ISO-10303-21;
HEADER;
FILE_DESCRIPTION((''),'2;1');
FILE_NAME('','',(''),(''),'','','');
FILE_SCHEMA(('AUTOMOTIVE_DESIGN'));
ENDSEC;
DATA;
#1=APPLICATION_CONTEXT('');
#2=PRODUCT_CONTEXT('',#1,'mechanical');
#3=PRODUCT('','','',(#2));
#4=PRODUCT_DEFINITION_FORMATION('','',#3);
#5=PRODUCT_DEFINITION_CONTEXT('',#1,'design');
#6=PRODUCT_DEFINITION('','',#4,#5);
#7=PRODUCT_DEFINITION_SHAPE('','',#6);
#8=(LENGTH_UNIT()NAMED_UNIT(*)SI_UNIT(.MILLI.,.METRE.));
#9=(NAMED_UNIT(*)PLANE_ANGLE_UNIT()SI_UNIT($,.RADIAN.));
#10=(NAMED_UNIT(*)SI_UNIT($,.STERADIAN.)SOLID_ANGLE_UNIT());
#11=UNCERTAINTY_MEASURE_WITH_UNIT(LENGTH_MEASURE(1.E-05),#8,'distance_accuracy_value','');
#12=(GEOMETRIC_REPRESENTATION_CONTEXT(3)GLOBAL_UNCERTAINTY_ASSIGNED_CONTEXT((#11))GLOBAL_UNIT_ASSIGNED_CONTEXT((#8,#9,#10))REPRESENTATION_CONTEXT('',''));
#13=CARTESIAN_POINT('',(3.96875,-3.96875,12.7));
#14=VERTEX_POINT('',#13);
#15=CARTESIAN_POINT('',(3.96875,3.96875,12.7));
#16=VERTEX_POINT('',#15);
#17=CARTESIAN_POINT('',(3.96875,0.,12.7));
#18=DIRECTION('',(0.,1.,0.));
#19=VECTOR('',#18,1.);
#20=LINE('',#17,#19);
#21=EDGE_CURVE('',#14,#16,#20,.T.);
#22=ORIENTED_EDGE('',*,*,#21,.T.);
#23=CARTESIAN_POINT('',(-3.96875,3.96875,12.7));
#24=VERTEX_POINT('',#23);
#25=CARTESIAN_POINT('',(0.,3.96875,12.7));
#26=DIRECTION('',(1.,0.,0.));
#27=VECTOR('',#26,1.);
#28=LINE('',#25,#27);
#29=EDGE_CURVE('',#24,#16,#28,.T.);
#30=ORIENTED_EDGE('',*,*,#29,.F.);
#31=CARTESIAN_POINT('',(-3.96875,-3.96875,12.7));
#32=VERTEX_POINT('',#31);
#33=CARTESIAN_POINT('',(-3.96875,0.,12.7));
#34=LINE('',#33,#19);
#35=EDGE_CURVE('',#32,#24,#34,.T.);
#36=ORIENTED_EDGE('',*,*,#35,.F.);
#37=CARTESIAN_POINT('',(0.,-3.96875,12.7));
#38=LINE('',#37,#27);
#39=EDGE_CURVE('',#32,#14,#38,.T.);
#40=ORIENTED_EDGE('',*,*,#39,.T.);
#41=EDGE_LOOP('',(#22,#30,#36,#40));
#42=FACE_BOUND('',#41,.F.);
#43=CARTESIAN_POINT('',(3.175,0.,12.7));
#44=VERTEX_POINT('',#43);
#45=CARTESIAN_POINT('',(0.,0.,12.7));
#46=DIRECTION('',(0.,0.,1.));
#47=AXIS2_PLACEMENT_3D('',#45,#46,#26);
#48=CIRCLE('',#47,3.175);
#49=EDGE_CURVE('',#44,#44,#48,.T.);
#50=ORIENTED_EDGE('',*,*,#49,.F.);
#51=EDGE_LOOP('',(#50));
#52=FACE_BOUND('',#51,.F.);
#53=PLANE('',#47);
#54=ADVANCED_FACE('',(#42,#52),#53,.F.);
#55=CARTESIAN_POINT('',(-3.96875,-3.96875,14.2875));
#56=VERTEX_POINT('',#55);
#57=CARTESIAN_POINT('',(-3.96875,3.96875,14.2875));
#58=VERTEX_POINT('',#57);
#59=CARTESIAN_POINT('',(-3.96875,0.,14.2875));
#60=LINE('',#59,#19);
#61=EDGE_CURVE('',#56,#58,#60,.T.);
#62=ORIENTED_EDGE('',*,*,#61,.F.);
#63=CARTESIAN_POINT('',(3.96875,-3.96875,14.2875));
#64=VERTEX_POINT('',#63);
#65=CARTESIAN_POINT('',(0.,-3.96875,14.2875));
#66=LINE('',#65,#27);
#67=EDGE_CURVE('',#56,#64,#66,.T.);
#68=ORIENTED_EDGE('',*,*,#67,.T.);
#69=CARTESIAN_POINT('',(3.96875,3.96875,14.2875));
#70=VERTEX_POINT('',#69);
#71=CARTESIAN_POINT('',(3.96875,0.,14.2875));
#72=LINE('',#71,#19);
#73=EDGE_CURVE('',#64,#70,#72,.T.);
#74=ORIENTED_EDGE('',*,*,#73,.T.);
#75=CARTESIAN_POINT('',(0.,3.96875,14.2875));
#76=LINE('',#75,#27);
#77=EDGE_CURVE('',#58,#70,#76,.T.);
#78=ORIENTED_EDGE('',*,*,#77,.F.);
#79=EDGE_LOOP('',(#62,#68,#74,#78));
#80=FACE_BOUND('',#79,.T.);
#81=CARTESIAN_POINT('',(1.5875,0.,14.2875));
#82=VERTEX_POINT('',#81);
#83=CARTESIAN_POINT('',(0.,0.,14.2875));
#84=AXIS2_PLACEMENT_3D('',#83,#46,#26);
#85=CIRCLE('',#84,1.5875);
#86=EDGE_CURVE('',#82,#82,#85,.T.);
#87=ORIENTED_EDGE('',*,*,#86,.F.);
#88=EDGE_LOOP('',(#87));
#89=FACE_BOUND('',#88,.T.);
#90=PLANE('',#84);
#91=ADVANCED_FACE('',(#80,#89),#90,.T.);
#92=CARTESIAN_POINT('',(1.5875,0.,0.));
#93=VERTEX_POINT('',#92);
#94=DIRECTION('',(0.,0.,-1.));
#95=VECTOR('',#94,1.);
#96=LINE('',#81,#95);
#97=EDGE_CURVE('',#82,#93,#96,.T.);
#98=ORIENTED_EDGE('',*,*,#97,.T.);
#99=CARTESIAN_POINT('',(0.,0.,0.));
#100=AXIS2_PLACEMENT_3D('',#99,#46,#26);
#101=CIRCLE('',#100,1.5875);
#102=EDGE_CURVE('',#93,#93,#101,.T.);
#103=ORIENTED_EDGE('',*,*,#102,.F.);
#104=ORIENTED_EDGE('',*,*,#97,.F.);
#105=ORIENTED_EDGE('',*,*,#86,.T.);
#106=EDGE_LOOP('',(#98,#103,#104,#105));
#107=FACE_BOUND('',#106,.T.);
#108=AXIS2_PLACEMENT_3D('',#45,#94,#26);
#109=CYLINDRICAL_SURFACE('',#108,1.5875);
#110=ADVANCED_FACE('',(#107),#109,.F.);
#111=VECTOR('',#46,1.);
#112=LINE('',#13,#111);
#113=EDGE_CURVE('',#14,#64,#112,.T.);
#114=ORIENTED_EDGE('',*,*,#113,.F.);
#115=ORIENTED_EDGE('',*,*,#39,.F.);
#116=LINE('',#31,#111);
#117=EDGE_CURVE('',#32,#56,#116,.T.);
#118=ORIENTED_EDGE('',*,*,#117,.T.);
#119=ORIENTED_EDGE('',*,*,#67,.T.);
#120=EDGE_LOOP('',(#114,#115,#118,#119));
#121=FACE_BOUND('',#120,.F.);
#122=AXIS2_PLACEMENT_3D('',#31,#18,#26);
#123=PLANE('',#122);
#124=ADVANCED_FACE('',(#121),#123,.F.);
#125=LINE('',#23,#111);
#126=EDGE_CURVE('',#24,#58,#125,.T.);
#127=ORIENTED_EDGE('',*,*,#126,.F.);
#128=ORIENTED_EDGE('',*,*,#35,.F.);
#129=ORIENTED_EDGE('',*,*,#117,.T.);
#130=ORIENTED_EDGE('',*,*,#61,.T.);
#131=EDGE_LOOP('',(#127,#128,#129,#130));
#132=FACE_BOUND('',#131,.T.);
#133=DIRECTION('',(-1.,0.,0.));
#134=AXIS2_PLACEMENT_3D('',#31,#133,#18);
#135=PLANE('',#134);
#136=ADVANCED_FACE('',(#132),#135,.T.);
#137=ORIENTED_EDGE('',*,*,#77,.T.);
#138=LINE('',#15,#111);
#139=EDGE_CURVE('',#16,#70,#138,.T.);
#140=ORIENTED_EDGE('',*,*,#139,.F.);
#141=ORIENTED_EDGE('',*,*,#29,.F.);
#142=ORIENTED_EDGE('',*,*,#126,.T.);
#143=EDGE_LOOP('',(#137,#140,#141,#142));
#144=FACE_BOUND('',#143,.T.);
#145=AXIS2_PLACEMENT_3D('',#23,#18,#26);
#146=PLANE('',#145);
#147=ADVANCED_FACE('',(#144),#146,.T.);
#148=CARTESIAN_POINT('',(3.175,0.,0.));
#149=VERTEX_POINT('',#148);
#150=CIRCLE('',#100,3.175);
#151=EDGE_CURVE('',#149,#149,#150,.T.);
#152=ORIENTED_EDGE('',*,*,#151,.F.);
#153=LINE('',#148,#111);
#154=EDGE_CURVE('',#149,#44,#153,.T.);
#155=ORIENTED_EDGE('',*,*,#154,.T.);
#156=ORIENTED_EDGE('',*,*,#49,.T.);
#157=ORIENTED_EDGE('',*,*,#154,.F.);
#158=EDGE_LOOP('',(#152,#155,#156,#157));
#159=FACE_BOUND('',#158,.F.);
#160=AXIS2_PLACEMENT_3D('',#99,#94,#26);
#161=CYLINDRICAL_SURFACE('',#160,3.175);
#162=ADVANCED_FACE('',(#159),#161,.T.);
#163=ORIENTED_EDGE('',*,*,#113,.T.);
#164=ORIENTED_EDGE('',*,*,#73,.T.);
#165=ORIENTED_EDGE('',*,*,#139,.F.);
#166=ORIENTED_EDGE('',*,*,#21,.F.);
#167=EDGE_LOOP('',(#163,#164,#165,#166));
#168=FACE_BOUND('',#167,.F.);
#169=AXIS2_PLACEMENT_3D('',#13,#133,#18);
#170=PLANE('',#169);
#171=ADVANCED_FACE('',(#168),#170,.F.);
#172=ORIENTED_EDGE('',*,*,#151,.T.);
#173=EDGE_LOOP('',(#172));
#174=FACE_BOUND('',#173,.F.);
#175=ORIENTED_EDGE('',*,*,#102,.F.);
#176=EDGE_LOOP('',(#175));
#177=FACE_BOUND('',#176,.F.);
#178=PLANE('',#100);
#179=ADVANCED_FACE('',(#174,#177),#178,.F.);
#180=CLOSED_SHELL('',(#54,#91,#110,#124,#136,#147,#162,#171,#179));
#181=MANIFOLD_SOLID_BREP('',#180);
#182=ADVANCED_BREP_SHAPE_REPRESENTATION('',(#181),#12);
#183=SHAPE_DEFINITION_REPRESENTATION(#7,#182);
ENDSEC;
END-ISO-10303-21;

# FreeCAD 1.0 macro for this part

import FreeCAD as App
import Part
import Sketcher
Q = App.Units.Quantity


def add_polygon(sketch, points):
    """Adds a closed chain of lines whose ends are joined by coincident constraints."""
    first, n = sketch.GeometryCount, len(points)
    for a, b in zip(points, points[1:] + points[:1]):
        sketch.addGeometry(Part.LineSegment(App.Vector(*a, 0), App.Vector(*b, 0)), False)
    for i in range(n):
        sketch.addConstraint(Sketcher.Constraint("Coincident", first + i, 2, first + (i + 1) % n, 1))

doc = App.newDocument("Part")
params = doc.addObject("Spreadsheet::Sheet", "Params")
for row, (alias, value) in enumerate([
    ("sketch1_diameter", "0.25 in"),
    ("sketch1_diameter2", "0.125 in"),
    ("pad1_length", "0.5 in"),
    ("sketch2_diameter", "0.125 in"),
    ("sketch2_width", "0.3125 in"),
    ("pad2_length", "0.0625 in"),
], start=1):
    params.set(f"A{row}", alias)
    params.set(f"B{row}", "=" + value)
    params.setAlias(f"B{row}", alias)

body = doc.addObject("PartDesign::Body", "Body")

# Sketch on XY plane
sketch1 = body.newObject("Sketcher::SketchObject", "Sketch")
sketch1.AttachmentSupport = (doc.getObject("XY_Plane"), [""])
sketch1.MapMode = "FlatFace"
sketch1.addGeometry(Part.Circle(App.Vector(0, 0, 0), App.Vector(0, 0, 1), 3.2), False)
sketch1.addGeometry(Part.Circle(App.Vector(0, 0, 0), App.Vector(0, 0, 1), 1.6), False)
sketch1.addConstraint(Sketcher.Constraint("Coincident", 0, 3, -1, 1))
sketch1.addConstraint(Sketcher.Constraint("Coincident", 1, 3, -1, 1))
sketch1.addConstraint(Sketcher.Constraint("Diameter", 0, Q("0.25 in")))
sketch1.addConstraint(Sketcher.Constraint("Diameter", 1, Q("0.125 in")))
sketch1.setExpression("Constraints[2]", "Params.sketch1_diameter")
sketch1.setExpression("Constraints[3]", "Params.sketch1_diameter2")
pad1 = body.newObject("PartDesign::Pad", "Pad")
pad1.Profile = sketch1
pad1.setExpression("Length", "Params.pad1_length")

# Sketch on XY plane
sketch2 = body.newObject("Sketcher::SketchObject", "Sketch001")
sketch2.AttachmentSupport = (doc.getObject("XY_Plane"), [""])
sketch2.MapMode = "FlatFace"
sketch2.AttachmentOffset = App.Placement(App.Vector(0, 0, 0.5 * 25.4), App.Rotation())
add_polygon(sketch2, [(-4, 4), (-4, -4), (4, -4), (4, 4)])  # lines 0-3
sketch2.addGeometry(Part.Circle(App.Vector(0, 0, 0), App.Vector(0, 0, 1), 1.6), False)  # 4
sketch2.addConstraint(Sketcher.Constraint("Vertical", 0))
sketch2.addConstraint(Sketcher.Constraint("Horizontal", 1))
sketch2.addConstraint(Sketcher.Constraint("Vertical", 2))
sketch2.addConstraint(Sketcher.Constraint("Horizontal", 3))
sketch2.addConstraint(Sketcher.Constraint("Coincident", 4, 3, -1, 1))
sketch2.addConstraint(Sketcher.Constraint("Symmetric", 0, 2, 2, 2, -1, 1))
sketch2.addConstraint(Sketcher.Constraint("Equal", 3, 0))
sketch2.addConstraint(Sketcher.Constraint("Diameter", 4, Q("0.125 in")))
sketch2.addConstraint(Sketcher.Constraint("DistanceX", 1, 1, 1, 2, Q("0.3125 in")))
sketch2.setExpression("Constraints[11]", "Params.sketch2_diameter")
sketch2.setExpression("Constraints[12]", "Params.sketch2_width")
pad2 = body.newObject("PartDesign::Pad", "Pad001")
pad2.Profile = sketch2
pad2.setExpression("Length", "Params.pad2_length")

doc.recompute()
